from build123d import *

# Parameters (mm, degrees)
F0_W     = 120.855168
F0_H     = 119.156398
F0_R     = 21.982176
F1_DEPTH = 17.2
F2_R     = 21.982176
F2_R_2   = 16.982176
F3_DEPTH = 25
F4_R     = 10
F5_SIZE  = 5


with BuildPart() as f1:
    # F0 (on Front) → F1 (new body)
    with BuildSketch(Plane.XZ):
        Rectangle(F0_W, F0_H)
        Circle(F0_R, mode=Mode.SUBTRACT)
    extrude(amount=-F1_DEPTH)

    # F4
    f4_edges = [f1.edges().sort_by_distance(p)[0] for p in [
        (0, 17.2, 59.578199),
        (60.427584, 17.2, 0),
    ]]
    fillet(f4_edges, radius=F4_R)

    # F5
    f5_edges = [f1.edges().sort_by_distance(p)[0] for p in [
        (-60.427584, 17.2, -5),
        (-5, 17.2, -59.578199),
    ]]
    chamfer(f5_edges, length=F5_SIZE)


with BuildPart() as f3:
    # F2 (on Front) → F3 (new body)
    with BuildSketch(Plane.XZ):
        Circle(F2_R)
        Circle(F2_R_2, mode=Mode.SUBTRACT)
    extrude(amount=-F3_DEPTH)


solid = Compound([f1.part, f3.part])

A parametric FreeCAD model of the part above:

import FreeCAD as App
import Part
import Sketcher
from FreeCAD import Vector
Q = App.Units.Quantity


def edges_at(feature, points):
    """Names of the edges that pass closest to the given points."""
    edges = feature.Shape.Edges
    near = lambda p: min(range(len(edges)), key=lambda i: edges[i].distToShape(Part.Vertex(*p))[0])
    return sorted({f"Edge{near(p) + 1}" for p in points})


def add_polygon(sketch, points):
    """Adds a closed chain of lines whose ends are joined by coincident constraints."""
    first, n = sketch.GeometryCount, len(points)
    for a, b in zip(points, points[1:] + points[:1]):
        sketch.addGeometry(Part.LineSegment(App.Vector(*a, 0), App.Vector(*b, 0)), False)
    for i in range(n):
        sketch.addConstraint(Sketcher.Constraint("Coincident", first + i, 2, first + (i + 1) % n, 1))

doc = App.newDocument("Part")
params = doc.addObject("Spreadsheet::Sheet", "Params")
for row, (alias, value) in enumerate([
    ("pad1_length", "17.2 mm"),
    ("fillet_radius", "10 mm"),
    ("chamfer_size", "5 mm"),
    ("pad2_length", "25 mm"),
], start=1):
    params.set(f"A{row}", alias)
    params.set(f"B{row}", "=" + value)
    params.setAlias(f"B{row}", alias)

body = doc.addObject("PartDesign::Body", "Body")

sketch1 = body.newObject("Sketcher::SketchObject", "Sketch")
sketch1.AttachmentSupport = (doc.getObject("XZ_Plane"), [""])
sketch1.MapMode = "FlatFace"
add_polygon(sketch1, [(-60.427584, 59.578199), (-60.427584, -59.578199), (60.427584, -59.578199), (60.427584, 59.578199)])
sketch1.addGeometry(Part.Circle(Vector(0, 0, 0), Vector(0, 0, 1), 21.982176), False)
sketch1.addConstraint([
    Sketcher.Constraint("Vertical", 0),
    Sketcher.Constraint("Horizontal", 1),
    Sketcher.Constraint("Vertical", 2),
    Sketcher.Constraint("Horizontal", 3),
    Sketcher.Constraint("Coincident", 4, 3, -1, 1),
    Sketcher.Constraint("Symmetric", 0, 2, 2, 2, -1, 1),
    Sketcher.Constraint("Diameter", 4, Q("43.964352 mm")),
    Sketcher.Constraint("DistanceX", 1, 1, 1, 2, Q("120.855168 mm")),
    Sketcher.Constraint("DistanceY", 0, 2, -1, 1, Q("59.578199 mm")),
])
pad1 = body.newObject("PartDesign::Pad", "Pad")
pad1.Profile = sketch1
pad1.setExpression("Length", "Params.pad1_length")
pad1.Reversed = True
doc.recompute()

fillet = body.newObject("PartDesign::Fillet", "Fillet")
fillet.Base = (pad1, edges_at(pad1, [(0, 17.2, 59.578), (60.428, 17.2, 0)]))
fillet.setExpression("Radius", "Params.fillet_radius")
doc.recompute()

chamfer = body.newObject("PartDesign::Chamfer", "Chamfer")
chamfer.Base = (fillet, edges_at(fillet, [(-60.428, 17.2, -5), (-5, 17.2, -59.578)]))
chamfer.setExpression("Size", "Params.chamfer_size")
body2 = doc.addObject("PartDesign::Body", "Body001")

sketch2 = body2.newObject("Sketcher::SketchObject", "Sketch001")
sketch2.AttachmentSupport = (doc.getObject("XZ_Plane001"), [""])
sketch2.MapMode = "FlatFace"
sketch2.addGeometry([
    Part.Circle(Vector(0, 0, 0), Vector(0, 0, 1), 21.982176),
    Part.Circle(Vector(0, 0, 0), Vector(0, 0, 1), 16.982176),
], False)
sketch2.addConstraint([
    Sketcher.Constraint("Coincident", 0, 3, -1, 1),
    Sketcher.Constraint("Coincident", 1, 3, -1, 1),
    Sketcher.Constraint("Diameter", 0, Q("43.964352 mm")),
    Sketcher.Constraint("Diameter", 1, Q("33.964352 mm")),
])
pad2 = body2.newObject("PartDesign::Pad", "Pad001")
pad2.Profile = sketch2
pad2.setExpression("Length", "Params.pad2_length")
pad2.Reversed = True

doc.recompute()
